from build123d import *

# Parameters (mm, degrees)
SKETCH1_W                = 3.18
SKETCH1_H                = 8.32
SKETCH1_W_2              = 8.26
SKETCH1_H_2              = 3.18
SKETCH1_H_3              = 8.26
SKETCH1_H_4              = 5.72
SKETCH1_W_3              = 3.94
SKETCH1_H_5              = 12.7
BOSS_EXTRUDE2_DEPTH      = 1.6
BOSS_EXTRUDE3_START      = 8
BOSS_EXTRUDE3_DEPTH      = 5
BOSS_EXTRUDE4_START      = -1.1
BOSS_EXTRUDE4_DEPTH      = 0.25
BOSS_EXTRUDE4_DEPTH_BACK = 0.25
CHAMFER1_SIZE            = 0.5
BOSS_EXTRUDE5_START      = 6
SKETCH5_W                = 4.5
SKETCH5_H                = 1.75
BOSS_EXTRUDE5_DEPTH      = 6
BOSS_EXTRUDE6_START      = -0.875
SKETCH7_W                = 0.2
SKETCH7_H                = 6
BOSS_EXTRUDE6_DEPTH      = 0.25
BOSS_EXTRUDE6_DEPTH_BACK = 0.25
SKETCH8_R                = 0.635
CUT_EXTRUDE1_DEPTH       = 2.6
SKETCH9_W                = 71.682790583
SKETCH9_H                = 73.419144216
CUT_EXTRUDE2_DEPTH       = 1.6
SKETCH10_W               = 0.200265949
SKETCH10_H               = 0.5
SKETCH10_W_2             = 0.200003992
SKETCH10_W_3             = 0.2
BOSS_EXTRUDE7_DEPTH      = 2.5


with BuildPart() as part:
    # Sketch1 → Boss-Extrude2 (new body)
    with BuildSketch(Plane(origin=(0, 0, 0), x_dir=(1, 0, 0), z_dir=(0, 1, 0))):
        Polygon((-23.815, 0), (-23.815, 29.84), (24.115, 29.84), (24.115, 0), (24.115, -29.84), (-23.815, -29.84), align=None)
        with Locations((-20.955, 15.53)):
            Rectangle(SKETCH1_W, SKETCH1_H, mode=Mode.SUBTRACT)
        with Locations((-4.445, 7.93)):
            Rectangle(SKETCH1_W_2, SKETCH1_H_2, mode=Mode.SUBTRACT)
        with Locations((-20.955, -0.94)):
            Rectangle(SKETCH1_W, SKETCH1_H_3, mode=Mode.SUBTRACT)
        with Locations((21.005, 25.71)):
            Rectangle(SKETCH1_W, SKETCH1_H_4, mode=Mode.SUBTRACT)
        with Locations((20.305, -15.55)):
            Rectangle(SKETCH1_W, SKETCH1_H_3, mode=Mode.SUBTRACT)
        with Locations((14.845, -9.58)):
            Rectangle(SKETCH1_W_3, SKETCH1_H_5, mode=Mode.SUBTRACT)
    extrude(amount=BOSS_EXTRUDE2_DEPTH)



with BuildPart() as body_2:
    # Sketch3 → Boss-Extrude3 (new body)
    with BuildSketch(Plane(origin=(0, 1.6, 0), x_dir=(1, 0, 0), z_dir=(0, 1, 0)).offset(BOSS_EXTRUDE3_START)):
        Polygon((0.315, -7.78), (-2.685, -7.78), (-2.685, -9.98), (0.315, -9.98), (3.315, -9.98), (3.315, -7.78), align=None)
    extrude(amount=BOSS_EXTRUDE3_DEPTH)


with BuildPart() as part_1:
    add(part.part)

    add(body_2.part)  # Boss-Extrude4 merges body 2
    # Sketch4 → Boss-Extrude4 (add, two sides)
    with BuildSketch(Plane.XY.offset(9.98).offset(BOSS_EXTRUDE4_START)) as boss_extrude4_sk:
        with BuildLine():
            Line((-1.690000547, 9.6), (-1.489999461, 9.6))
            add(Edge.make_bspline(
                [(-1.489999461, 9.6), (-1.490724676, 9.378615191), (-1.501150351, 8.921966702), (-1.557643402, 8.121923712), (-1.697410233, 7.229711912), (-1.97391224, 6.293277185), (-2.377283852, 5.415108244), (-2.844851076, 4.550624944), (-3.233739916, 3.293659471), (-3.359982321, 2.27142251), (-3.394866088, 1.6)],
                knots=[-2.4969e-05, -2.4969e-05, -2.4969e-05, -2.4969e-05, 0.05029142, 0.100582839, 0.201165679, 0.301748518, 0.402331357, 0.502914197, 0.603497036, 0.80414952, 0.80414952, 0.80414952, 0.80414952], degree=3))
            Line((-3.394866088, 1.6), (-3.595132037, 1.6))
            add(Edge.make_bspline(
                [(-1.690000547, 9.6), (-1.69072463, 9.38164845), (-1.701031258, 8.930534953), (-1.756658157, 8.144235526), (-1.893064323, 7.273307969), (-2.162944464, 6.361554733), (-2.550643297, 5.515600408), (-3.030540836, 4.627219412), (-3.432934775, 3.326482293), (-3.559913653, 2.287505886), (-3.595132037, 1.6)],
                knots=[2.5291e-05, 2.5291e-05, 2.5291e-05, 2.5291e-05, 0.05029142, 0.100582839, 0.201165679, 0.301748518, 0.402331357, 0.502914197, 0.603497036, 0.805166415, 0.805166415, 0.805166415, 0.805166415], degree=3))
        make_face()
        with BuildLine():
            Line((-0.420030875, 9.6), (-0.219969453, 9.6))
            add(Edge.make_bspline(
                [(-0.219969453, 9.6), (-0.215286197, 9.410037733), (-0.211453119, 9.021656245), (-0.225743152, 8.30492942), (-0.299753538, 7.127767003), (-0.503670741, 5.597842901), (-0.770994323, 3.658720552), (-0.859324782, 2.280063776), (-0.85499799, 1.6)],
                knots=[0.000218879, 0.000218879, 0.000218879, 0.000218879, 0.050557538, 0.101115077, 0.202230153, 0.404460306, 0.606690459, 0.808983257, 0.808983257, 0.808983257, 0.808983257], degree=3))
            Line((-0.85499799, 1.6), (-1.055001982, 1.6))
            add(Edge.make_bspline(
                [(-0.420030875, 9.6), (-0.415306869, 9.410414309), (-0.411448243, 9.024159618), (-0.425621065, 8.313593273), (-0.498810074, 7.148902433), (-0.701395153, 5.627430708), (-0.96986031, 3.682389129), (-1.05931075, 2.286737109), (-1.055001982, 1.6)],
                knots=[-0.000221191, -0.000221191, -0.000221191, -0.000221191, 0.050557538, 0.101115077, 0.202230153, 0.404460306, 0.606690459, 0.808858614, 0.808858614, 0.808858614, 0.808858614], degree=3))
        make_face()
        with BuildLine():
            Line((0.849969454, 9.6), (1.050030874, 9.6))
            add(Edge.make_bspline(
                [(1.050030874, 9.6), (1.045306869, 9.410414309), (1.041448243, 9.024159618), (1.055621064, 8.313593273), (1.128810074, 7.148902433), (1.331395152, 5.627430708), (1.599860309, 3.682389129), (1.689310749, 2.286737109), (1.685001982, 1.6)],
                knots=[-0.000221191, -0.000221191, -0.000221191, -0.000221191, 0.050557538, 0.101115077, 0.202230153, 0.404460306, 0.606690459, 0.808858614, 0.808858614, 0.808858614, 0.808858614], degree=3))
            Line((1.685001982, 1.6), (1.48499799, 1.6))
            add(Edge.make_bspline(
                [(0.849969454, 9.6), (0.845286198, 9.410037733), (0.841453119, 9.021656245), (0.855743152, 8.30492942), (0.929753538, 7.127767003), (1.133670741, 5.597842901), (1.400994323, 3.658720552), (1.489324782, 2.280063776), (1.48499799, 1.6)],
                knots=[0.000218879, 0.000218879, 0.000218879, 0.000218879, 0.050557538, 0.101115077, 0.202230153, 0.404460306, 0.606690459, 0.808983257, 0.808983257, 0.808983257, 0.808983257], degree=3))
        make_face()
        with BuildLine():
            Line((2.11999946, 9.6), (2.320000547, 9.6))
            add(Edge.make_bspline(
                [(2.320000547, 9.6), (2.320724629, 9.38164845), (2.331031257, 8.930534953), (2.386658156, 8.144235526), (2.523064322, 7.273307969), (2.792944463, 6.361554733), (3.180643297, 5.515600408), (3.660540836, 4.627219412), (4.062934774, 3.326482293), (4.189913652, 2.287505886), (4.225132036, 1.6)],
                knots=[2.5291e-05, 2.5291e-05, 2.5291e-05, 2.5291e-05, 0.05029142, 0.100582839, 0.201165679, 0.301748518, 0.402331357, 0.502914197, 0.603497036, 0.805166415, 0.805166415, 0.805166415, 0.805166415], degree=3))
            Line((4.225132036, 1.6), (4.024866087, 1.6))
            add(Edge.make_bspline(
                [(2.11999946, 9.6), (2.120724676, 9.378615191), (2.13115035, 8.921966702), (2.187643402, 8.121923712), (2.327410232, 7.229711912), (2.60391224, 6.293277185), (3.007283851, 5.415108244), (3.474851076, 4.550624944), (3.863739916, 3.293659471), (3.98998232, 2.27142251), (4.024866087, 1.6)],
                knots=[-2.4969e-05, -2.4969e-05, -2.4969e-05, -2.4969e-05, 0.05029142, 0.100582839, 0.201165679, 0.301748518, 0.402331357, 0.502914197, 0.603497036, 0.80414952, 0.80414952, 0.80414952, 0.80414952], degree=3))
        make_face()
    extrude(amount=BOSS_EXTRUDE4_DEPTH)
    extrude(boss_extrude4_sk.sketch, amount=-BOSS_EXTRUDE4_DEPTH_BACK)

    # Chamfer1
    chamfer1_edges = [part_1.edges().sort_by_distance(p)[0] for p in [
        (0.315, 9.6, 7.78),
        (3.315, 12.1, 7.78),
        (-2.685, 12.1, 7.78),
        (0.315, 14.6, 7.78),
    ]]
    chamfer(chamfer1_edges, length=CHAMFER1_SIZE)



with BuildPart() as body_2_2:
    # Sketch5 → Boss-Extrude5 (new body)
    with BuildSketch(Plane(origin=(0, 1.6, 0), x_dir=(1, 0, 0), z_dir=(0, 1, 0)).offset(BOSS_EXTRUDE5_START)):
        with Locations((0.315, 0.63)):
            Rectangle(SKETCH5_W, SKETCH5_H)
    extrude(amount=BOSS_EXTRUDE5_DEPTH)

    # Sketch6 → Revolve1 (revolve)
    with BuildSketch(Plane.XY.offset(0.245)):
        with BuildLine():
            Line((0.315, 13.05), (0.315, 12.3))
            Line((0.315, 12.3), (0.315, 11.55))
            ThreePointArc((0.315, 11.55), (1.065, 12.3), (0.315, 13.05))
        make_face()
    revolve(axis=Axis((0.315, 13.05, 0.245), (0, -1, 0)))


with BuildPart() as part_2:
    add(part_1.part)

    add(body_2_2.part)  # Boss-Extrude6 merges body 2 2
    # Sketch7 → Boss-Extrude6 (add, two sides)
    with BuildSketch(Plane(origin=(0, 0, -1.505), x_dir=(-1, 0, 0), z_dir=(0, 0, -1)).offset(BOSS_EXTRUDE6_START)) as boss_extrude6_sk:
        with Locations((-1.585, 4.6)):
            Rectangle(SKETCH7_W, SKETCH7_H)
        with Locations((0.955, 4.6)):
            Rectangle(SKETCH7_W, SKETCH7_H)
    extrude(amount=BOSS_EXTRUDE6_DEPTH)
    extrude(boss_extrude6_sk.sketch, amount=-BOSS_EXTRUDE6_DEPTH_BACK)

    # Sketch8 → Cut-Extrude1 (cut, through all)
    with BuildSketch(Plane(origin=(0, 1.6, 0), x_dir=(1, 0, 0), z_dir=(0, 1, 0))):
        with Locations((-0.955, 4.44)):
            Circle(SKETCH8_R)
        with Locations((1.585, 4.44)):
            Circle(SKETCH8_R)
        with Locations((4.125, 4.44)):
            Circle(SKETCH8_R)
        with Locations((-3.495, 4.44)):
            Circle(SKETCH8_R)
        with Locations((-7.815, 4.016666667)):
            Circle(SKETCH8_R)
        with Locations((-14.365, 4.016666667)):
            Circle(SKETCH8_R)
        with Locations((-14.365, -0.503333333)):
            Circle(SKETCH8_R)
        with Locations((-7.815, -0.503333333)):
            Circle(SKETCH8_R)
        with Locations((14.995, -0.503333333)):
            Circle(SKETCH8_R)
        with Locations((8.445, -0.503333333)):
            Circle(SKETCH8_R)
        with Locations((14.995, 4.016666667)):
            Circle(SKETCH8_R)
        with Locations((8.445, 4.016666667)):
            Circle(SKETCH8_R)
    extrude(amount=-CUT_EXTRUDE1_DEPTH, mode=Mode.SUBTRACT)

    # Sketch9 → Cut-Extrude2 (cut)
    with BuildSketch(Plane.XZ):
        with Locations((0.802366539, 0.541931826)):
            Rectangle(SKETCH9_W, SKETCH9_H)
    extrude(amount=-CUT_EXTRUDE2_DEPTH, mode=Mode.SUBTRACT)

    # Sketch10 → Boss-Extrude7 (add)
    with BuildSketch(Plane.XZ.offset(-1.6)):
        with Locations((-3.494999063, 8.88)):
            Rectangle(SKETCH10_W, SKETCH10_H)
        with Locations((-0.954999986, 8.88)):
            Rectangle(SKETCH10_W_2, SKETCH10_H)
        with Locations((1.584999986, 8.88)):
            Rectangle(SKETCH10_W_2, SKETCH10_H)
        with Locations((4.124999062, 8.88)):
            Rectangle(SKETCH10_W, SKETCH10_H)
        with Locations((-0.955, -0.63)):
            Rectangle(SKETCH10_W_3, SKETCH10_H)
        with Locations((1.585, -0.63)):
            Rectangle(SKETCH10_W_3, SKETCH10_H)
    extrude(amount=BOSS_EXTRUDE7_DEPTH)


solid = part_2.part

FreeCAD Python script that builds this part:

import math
import FreeCAD as App
import Part
import Sketcher

V = App.Vector


def edges_at(feature, points):
    """Names of the edges that pass closest to the given points."""
    edges = feature.Shape.Edges
    near = lambda p: min(range(len(edges)), key=lambda i: edges[i].distToShape(Part.Vertex(*p))[0])
    return sorted({f"Edge{near(p) + 1}" for p in points})


def add_polygon(sketch, points):
    """Adds a closed chain of lines whose ends are joined by coincident constraints."""
    first, n = sketch.GeometryCount, len(points)
    for a, b in zip(points, points[1:] + points[:1]):
        sketch.addGeometry(Part.LineSegment(App.Vector(*a, 0), App.Vector(*b, 0)), False)
    for i in range(n):
        sketch.addConstraint(Sketcher.Constraint("Coincident", first + i, 2, first + (i + 1) % n, 1))

doc = App.newDocument("Part")
body = doc.addObject("PartDesign::Body", "Body")

sketch1 = body.newObject("Sketcher::SketchObject", "Sketch")
sketch1.AttachmentSupport = (doc.getObject("XZ_Plane"), [""])
sketch1.MapMode = "FlatFace"
add_polygon(sketch1, [(-23.8, -29.8), (-23.8, 29.8), (24.1, 29.8), (24.1, -29.8)])
add_polygon(sketch1, [(18.7, 19.7), (18.7, 11.4), (21.9, 11.4), (21.9, 19.7)])
add_polygon(sketch1, [(12.9, 15.9), (12.9, 3.2), (16.8, 3.2), (16.8, 15.9)])
add_polygon(sketch1, [(-22.5, 5.1), (-22.5, -3.2), (-19.4, -3.2), (-19.4, 5.1)])
add_polygon(sketch1, [(19.4, -22.9), (19.4, -28.6), (22.6, -28.6), (22.6, -22.9)])
add_polygon(sketch1, [(-8.6, -6.3), (-8.6, -9.5), (-0.3, -9.5), (-0.3, -6.3)])
add_polygon(sketch1, [(-22.5, -11.4), (-22.5, -19.7), (-19.4, -19.7), (-19.4, -11.4)])
sketch1.addConstraint([
    Sketcher.Constraint("Vertical", 0),
    Sketcher.Constraint("Horizontal", 1),
    Sketcher.Constraint("Vertical", 2),
    Sketcher.Constraint("Horizontal", 3),
    Sketcher.Constraint("Vertical", 4),
    Sketcher.Constraint("Horizontal", 5),
    Sketcher.Constraint("Vertical", 6),
    Sketcher.Constraint("Horizontal", 7),
    Sketcher.Constraint("Vertical", 8),
    Sketcher.Constraint("Horizontal", 9),
    Sketcher.Constraint("Vertical", 10),
    Sketcher.Constraint("Horizontal", 11),
    Sketcher.Constraint("Vertical", 12),
    Sketcher.Constraint("Horizontal", 13),
    Sketcher.Constraint("Vertical", 14),
    Sketcher.Constraint("Horizontal", 15),
    Sketcher.Constraint("Vertical", 16),
    Sketcher.Constraint("Horizontal", 17),
    Sketcher.Constraint("Vertical", 18),
    Sketcher.Constraint("Horizontal", 19),
    Sketcher.Constraint("Vertical", 20),
    Sketcher.Constraint("Horizontal", 21),
    Sketcher.Constraint("Vertical", 22),
    Sketcher.Constraint("Horizontal", 23),
    Sketcher.Constraint("Vertical", 24),
    Sketcher.Constraint("Horizontal", 25),
    Sketcher.Constraint("Vertical", 26),
    Sketcher.Constraint("Horizontal", 27),
    Sketcher.Constraint("Vertical", 15, 2, 24, 2),
    Sketcher.Constraint("Vertical", 14, 2, 25, 2),
    Sketcher.Constraint("Equal", 7, 13),
    Sketcher.Constraint("Equal", 15, 17),
    Sketcher.Constraint("Equal", 23, 4),
    Sketcher.Constraint("Equal", 6, 12),
    Sketcher.Constraint("Equal", 27, 20),
    Sketcher.Constraint("DistanceY", 8, 2, 8, 1, 12.7),
    Sketcher.Constraint("DistanceX", 1, 1, 1, 2, 47.93),
    Sketcher.Constraint("DistanceX", 5, 1, 5, 2, 3.18),
    Sketcher.Constraint("DistanceX", 9, 1, 9, 2, 3.94),
    Sketcher.Constraint("DistanceX", 21, 1, 21, 2, 8.26),
    Sketcher.Constraint("DistanceY", 0, 1, 0, 2, 59.68),
    Sketcher.Constraint("DistanceY", 16, 2, 16, 1, 5.72),
    Sketcher.Constraint("DistanceY", 24, 2, 24, 1, 8.32),
    Sketcher.Constraint("DistanceX", 4, 2, 1, 2, 5.4),
    Sketcher.Constraint("DistanceX", 9, 2, 4, 2, 1.9),
    Sketcher.Constraint("DistanceX", 16, 2, 2, 2, 4.7),
    Sketcher.Constraint("DistanceY", 16, 2, 9, 2, 31.8),
    Sketcher.Constraint("DistanceY", 24, 2, 12, 2, 16.5),
    Sketcher.Constraint("DistanceY", -1, 1, 0, 2, 29.84),
    Sketcher.Constraint("DistanceY", -1, 1, 4, 2, 11.42),
    Sketcher.Constraint("DistanceY", -1, 1, 8, 2, 3.23),
    Sketcher.Constraint("DistanceY", 12, 2, -1, 1, 3.19),
    Sketcher.Constraint("DistanceY", 20, 2, -1, 1, 9.52),
    Sketcher.Constraint("DistanceX", 3, 2, 12, 2, 1.27),
    Sketcher.Constraint("DistanceX", 13, 2, 20, 2, 10.79),
    Sketcher.Constraint("DistanceX", 0, 2, -1, 1, 23.815),
])
pad1 = body.newObject("PartDesign::Pad", "Pad")
pad1.Profile = sketch1
pad1.Length = 1.6
pad1.Reversed = True
body2 = doc.addObject("PartDesign::Body", "Body001")

sketch2 = body2.newObject("Sketcher::SketchObject", "Sketch001")
sketch2.AttachmentSupport = (doc.getObject("XZ_Plane001"), [""])
sketch2.MapMode = "FlatFace"
sketch2.AttachmentOffset = App.Placement(V(0, 0, -9.6), App.Rotation())
add_polygon(sketch2, [(-2.7, 7.8), (-2.7, 10), (3.3, 10), (3.3, 7.8)])
sketch2.addConstraint([
    Sketcher.Constraint("Vertical", 0),
    Sketcher.Constraint("Horizontal", 1),
    Sketcher.Constraint("Vertical", 2),
    Sketcher.Constraint("Horizontal", 3),
    Sketcher.Constraint("DistanceX", 1, 1, 1, 2, 6.0),
    Sketcher.Constraint("DistanceY", 0, 1, 0, 2, 2.2),
    Sketcher.Constraint("DistanceY", -1, 1, 0, 2, 9.98),
    Sketcher.Constraint("DistanceX", 0, 2, -1, 1, 2.685),
])
pad2 = body2.newObject("PartDesign::Pad", "Pad001")
pad2.Profile = sketch2
pad2.Length = 5
pad2.Reversed = True
body.AllowCompound = True
doc.recompute()

boolean = body.newObject("PartDesign::Boolean", "Boolean")
boolean.Type = "Fuse"
boolean.addObjects([body2])

sketch3 = body.newObject("Sketcher::SketchObject", "Sketch002")
sketch3.AttachmentSupport = (doc.getObject("XY_Plane"), [""])
sketch3.MapMode = "FlatFace"
sketch3.AttachmentOffset = App.Placement(V(0, 0, 8.88), App.Rotation())
sketch3.addGeometry([
    Part.LineSegment(V(-1.489999, 9.6, 0), V(-1.690001, 9.6, 0)),
    Part.BSplineCurve([V(-1.690001, 9.6, 0), V(-1.690725, 9.381648, 0), V(-1.701031, 8.930535, 0), V(-1.756658, 8.144236, 0), V(-1.893064, 7.273308, 0), V(-2.162944, 6.361555, 0), V(-2.550643, 5.5156, 0), V(-3.030541, 4.627219, 0), V(-3.432935, 3.326482, 0), V(-3.559914, 2.287506, 0), V(-3.595132, 1.6, 0)], [4, 1, 1, 1, 1, 1, 1, 1, 4], [0.000025291, 0.05029142, 0.100582839, 0.201165679, 0.301748518, 0.402331357, 0.502914197, 0.603497036, 0.805166415], False, 3, [1, 1, 1, 1, 1, 1, 1, 1, 1, 1, 1], False),
    Part.LineSegment(V(-3.595132, 1.6, 0), V(-3.394866, 1.6, 0)),
    Part.BSplineCurve([V(-1.489999, 9.6, 0), V(-1.490725, 9.378615, 0), V(-1.50115, 8.921967, 0), V(-1.557643, 8.121924, 0), V(-1.69741, 7.229712, 0), V(-1.973912, 6.293277, 0), V(-2.377284, 5.415108, 0), V(-2.844851, 4.550625, 0), V(-3.23374, 3.293659, 0), V(-3.359982, 2.271423, 0), V(-3.394866, 1.6, 0)], [4, 1, 1, 1, 1, 1, 1, 1, 4], [-0.000024969, 0.05029142, 0.100582839, 0.201165679, 0.301748518, 0.402331357, 0.502914197, 0.603497036, 0.80414952], False, 3, [1, 1, 1, 1, 1, 1, 1, 1, 1, 1, 1], False),
    Part.LineSegment(V(-0.219969, 9.6, 0), V(-0.420031, 9.6, 0)),
    Part.BSplineCurve([V(-0.420031, 9.6, 0), V(-0.415307, 9.410414, 0), V(-0.411448, 9.02416, 0), V(-0.425621, 8.313593, 0), V(-0.49881, 7.148902, 0), V(-0.701395, 5.627431, 0), V(-0.96986, 3.682389, 0), V(-1.059311, 2.286737, 0), V(-1.055002, 1.6, 0)], [4, 1, 1, 1, 1, 1, 4], [-0.000221191, 0.050557538, 0.101115077, 0.202230153, 0.404460306, 0.606690459, 0.808858614], False, 3, [1, 1, 1, 1, 1, 1, 1, 1, 1], False),
    Part.LineSegment(V(-1.055002, 1.6, 0), V(-0.854998, 1.6, 0)),
    Part.BSplineCurve([V(-0.219969, 9.6, 0), V(-0.215286, 9.410038, 0), V(-0.211453, 9.021656, 0), V(-0.225743, 8.304929, 0), V(-0.299754, 7.127767, 0), V(-0.503671, 5.597843, 0), V(-0.770994, 3.658721, 0), V(-0.859325, 2.280064, 0), V(-0.854998, 1.6, 0)], [4, 1, 1, 1, 1, 1, 4], [0.000218879, 0.050557538, 0.101115077, 0.202230153, 0.404460306, 0.606690459, 0.808983257], False, 3, [1, 1, 1, 1, 1, 1, 1, 1, 1], False),
    Part.LineSegment(V(1.050031, 9.6, 0), V(0.849969, 9.6, 0)),
    Part.BSplineCurve([V(0.849969, 9.6, 0), V(0.845286, 9.410038, 0), V(0.841453, 9.021656, 0), V(0.855743, 8.304929, 0), V(0.929754, 7.127767, 0), V(1.133671, 5.597843, 0), V(1.400994, 3.658721, 0), V(1.489325, 2.280064, 0), V(1.484998, 1.6, 0)], [4, 1, 1, 1, 1, 1, 4], [0.000218879, 0.050557538, 0.101115077, 0.202230153, 0.404460306, 0.606690459, 0.808983257], False, 3, [1, 1, 1, 1, 1, 1, 1, 1, 1], False),
    Part.LineSegment(V(1.484998, 1.6, 0), V(1.685002, 1.6, 0)),
    Part.BSplineCurve([V(1.050031, 9.6, 0), V(1.045307, 9.410414, 0), V(1.041448, 9.02416, 0), V(1.055621, 8.313593, 0), V(1.12881, 7.148902, 0), V(1.331395, 5.627431, 0), V(1.59986, 3.682389, 0), V(1.689311, 2.286737, 0), V(1.685002, 1.6, 0)], [4, 1, 1, 1, 1, 1, 4], [-0.000221191, 0.050557538, 0.101115077, 0.202230153, 0.404460306, 0.606690459, 0.808858614], False, 3, [1, 1, 1, 1, 1, 1, 1, 1, 1], False),
    Part.LineSegment(V(2.320001, 9.6, 0), V(2.119999, 9.6, 0)),
    Part.BSplineCurve([V(2.119999, 9.6, 0), V(2.120725, 9.378615, 0), V(2.13115, 8.921967, 0), V(2.187643, 8.121924, 0), V(2.32741, 7.229712, 0), V(2.603912, 6.293277, 0), V(3.007284, 5.415108, 0), V(3.474851, 4.550625, 0), V(3.86374, 3.293659, 0), V(3.989982, 2.271423, 0), V(4.024866, 1.6, 0)], [4, 1, 1, 1, 1, 1, 1, 1, 4], [-0.000024969, 0.05029142, 0.100582839, 0.201165679, 0.301748518, 0.402331357, 0.502914197, 0.603497036, 0.80414952], False, 3, [1, 1, 1, 1, 1, 1, 1, 1, 1, 1, 1], False),
    Part.LineSegment(V(4.024866, 1.6, 0), V(4.225132, 1.6, 0)),
    Part.BSplineCurve([V(2.320001, 9.6, 0), V(2.320725, 9.381648, 0), V(2.331031, 8.930535, 0), V(2.386658, 8.144236, 0), V(2.523064, 7.273308, 0), V(2.792944, 6.361555, 0), V(3.180643, 5.5156, 0), V(3.660541, 4.627219, 0), V(4.062935, 3.326482, 0), V(4.189914, 2.287506, 0), V(4.225132, 1.6, 0)], [4, 1, 1, 1, 1, 1, 1, 1, 4], [0.000025291, 0.05029142, 0.100582839, 0.201165679, 0.301748518, 0.402331357, 0.502914197, 0.603497036, 0.805166415], False, 3, [1, 1, 1, 1, 1, 1, 1, 1, 1, 1, 1], False),
], False)
sketch3.addConstraint([
    Sketcher.Constraint("Block", 1),
    Sketcher.Constraint("Block", 3),
    Sketcher.Constraint("Block", 5),
    Sketcher.Constraint("Block", 7),
    Sketcher.Constraint("Block", 9),
    Sketcher.Constraint("Block", 11),
    Sketcher.Constraint("Block", 13),
    Sketcher.Constraint("Block", 15),
    Sketcher.Constraint("Coincident", 0, 2, 1, 1),
    Sketcher.Constraint("Coincident", 1, 2, 2, 1),
    Sketcher.Constraint("Coincident", 2, 2, 3, 2),
    Sketcher.Constraint("Coincident", 3, 1, 0, 1),
    Sketcher.Constraint("Coincident", 4, 2, 5, 1),
    Sketcher.Constraint("Coincident", 5, 2, 6, 1),
    Sketcher.Constraint("Coincident", 6, 2, 7, 2),
    Sketcher.Constraint("Coincident", 7, 1, 4, 1),
    Sketcher.Constraint("Coincident", 8, 2, 9, 1),
    Sketcher.Constraint("Coincident", 9, 2, 10, 1),
    Sketcher.Constraint("Coincident", 10, 2, 11, 2),
    Sketcher.Constraint("Coincident", 11, 1, 8, 1),
    Sketcher.Constraint("Coincident", 12, 2, 13, 1),
    Sketcher.Constraint("Coincident", 13, 2, 14, 1),
    Sketcher.Constraint("Coincident", 14, 2, 15, 2),
    Sketcher.Constraint("Coincident", 15, 1, 12, 1),
])
pad3 = body.newObject("PartDesign::Pad", "Pad002")
pad3.Profile = sketch3
pad3.Type = "TwoLengths"
pad3.Length = 0.25
pad3.Length2 = 0.25
doc.recompute()

chamfer = body.newObject("PartDesign::Chamfer", "Chamfer")
chamfer.Base = (pad3, edges_at(pad3, [
    (0.315, 9.6, 7.78),
    (3.315, 12.1, 7.78),
    (-2.685, 12.1, 7.78),
    (0.315, 14.6, 7.78),
]))
chamfer.Size = 0.5
body3 = doc.addObject("PartDesign::Body", "Body002")

sketch4 = body3.newObject("Sketcher::SketchObject", "Sketch003")
sketch4.AttachmentSupport = (doc.getObject("XZ_Plane002"), [""])
sketch4.MapMode = "FlatFace"
sketch4.AttachmentOffset = App.Placement(V(0, 0, -7.6), App.Rotation())
add_polygon(sketch4, [(-1.9, -1.5), (-1.9, 0.2), (2.6, 0.2), (2.6, -1.5)])
sketch4.addConstraint([
    Sketcher.Constraint("Vertical", 0),
    Sketcher.Constraint("Horizontal", 1),
    Sketcher.Constraint("Vertical", 2),
    Sketcher.Constraint("Horizontal", 3),
    Sketcher.Constraint("DistanceX", 1, 1, 1, 2, 4.5),
    Sketcher.Constraint("DistanceY", 0, 1, 0, 2, 1.75),
    Sketcher.Constraint("DistanceX", 0, 2, -1, 1, 1.935),
    Sketcher.Constraint("DistanceY", -1, 1, 0, 2, 0.245),
])
pad4 = body3.newObject("PartDesign::Pad", "Pad003")
pad4.Profile = sketch4
pad4.Length = 6
pad4.Reversed = True

sketch5 = body3.newObject("Sketcher::SketchObject", "Sketch004")
sketch5.AttachmentSupport = (doc.getObject("XY_Plane002"), [""])
sketch5.MapMode = "FlatFace"
sketch5.AttachmentOffset = App.Placement(V(0, 0, 0.245), App.Rotation())
sketch5.addGeometry([
    Part.LineSegment(V(0.3, 13.1, 0), V(0.3, 11.6, 0)),
    Part.ArcOfCircle(Part.Circle(V(0.3, 12.3, 0), V(0, 0, 1), 0.8), math.radians(-90), math.radians(90)),
], False)
sketch5.addGeometry(Part.LineSegment(V(0.3, 13.1, 0), V(0.3, 11.6, 0)), True)
sketch5.addConstraint([
    Sketcher.Constraint("Coincident", 0, 1, 1, 2),
    Sketcher.Constraint("Coincident", 1, 1, 0, 2),
    Sketcher.Constraint("Vertical", 0),
    Sketcher.Constraint("Vertical", 2),
    Sketcher.Constraint("Coincident", 2, 1, 0, 1),
    Sketcher.Constraint("Vertical", 1, 3, 0, 1),
    Sketcher.Constraint("Equal", 0, 2),
    Sketcher.Constraint("Radius", 1, 0.75),
    Sketcher.Constraint("DistanceY", -1, 1, 1, 3, 12.3),
    Sketcher.Constraint("DistanceX", -1, 1, 1, 3, 0.315),
])
revolution = body3.newObject("PartDesign::Revolution", "Revolution")
revolution.Profile = sketch5
revolution.ReferenceAxis = (sketch5, ["Axis0"])
revolution.Angle = 360
body.AllowCompound = True
doc.recompute()

boolean2 = body.newObject("PartDesign::Boolean", "Boolean001")
boolean2.Type = "Fuse"
boolean2.addObjects([body3])

sketch6 = body.newObject("Sketcher::SketchObject", "Sketch005")
sketch6.AttachmentSupport = (doc.getObject("XY_Plane"), [""])
sketch6.MapMode = "FlatFace"
sketch6.AttachmentOffset = App.Placement(V(0, 0, -0.63), App.Rotation())
add_polygon(sketch6, [(1.69, 7.6), (1.69, 1.6), (1.49, 1.6), (1.49, 7.6)])
add_polygon(sketch6, [(-0.85, 7.6), (-0.85, 1.6), (-1.05, 1.6), (-1.05, 7.6)])
sketch6.addConstraint([
    Sketcher.Constraint("Vertical", 0),
    Sketcher.Constraint("Horizontal", 1),
    Sketcher.Constraint("Vertical", 2),
    Sketcher.Constraint("Horizontal", 3),
    Sketcher.Constraint("Vertical", 4),
    Sketcher.Constraint("Horizontal", 5),
    Sketcher.Constraint("Vertical", 6),
    Sketcher.Constraint("Horizontal", 7),
    Sketcher.Constraint("Horizontal", 1, 2, 4, 2),
    Sketcher.Constraint("Horizontal", 3, 2, 6, 2),
    Sketcher.Constraint("Equal", 3, 5),
    Sketcher.Constraint("DistanceY", 0, 2, 0, 1, 6.0),
    Sketcher.Constraint("DistanceX", 1, 2, 1, 1, 0.2),
    Sketcher.Constraint("DistanceY", -1, 1, 0, 2, 1.6),
    Sketcher.Constraint("DistanceX", 4, 2, 1, 2, 2.34),
    Sketcher.Constraint("DistanceX", -1, 1, 0, 2, 1.685),
])
pad5 = body.newObject("PartDesign::Pad", "Pad004")
pad5.Profile = sketch6
pad5.Type = "TwoLengths"
pad5.Length = 0.25
pad5.Length2 = 0.25
pad5.Reversed = True

sketch7 = body.newObject("Sketcher::SketchObject", "Sketch006")
sketch7.AttachmentSupport = (doc.getObject("XZ_Plane"), [""])
sketch7.MapMode = "FlatFace"
sketch7.AttachmentOffset = App.Placement(V(0, 0, -1.6), App.Rotation())
sketch7.addGeometry([
    Part.Circle(V(-1, -4.4, 0), V(0, 0, 1), 0.6),
    Part.Circle(V(1.6, -4.4, 0), V(0, 0, 1), 0.6),
    Part.Circle(V(4.1, -4.4, 0), V(0, 0, 1), 0.6),
    Part.Circle(V(-3.5, -4.4, 0), V(0, 0, 1), 0.6),
    Part.Circle(V(-7.8, -4, 0), V(0, 0, 1), 0.6),
    Part.Circle(V(-14.4, -4, 0), V(0, 0, 1), 0.6),
    Part.Circle(V(-14.4, 0.5, 0), V(0, 0, 1), 0.6),
    Part.Circle(V(-7.8, 0.5, 0), V(0, 0, 1), 0.6),
    Part.Circle(V(15, 0.5, 0), V(0, 0, 1), 0.6),
    Part.Circle(V(8.4, 0.5, 0), V(0, 0, 1), 0.6),
    Part.Circle(V(15, -4, 0), V(0, 0, 1), 0.6),
    Part.Circle(V(8.4, -4, 0), V(0, 0, 1), 0.6),
], False)
sketch7.addConstraint([
    Sketcher.Constraint("Equal", 0, 1),
    Sketcher.Constraint("Equal", 1, 2),
    Sketcher.Constraint("Equal", 2, 3),
    Sketcher.Constraint("Equal", 3, 4),
    Sketcher.Constraint("Equal", 4, 5),
    Sketcher.Constraint("Equal", 5, 6),
    Sketcher.Constraint("Equal", 6, 7),
    Sketcher.Constraint("Equal", 7, 8),
    Sketcher.Constraint("Equal", 8, 9),
    Sketcher.Constraint("Equal", 9, 10),
    Sketcher.Constraint("Equal", 10, 11),
    Sketcher.Constraint("Horizontal", 0, 3, 1, 3),
    Sketcher.Constraint("Horizontal", 1, 3, 2, 3),
    Sketcher.Constraint("Horizontal", 2, 3, 3, 3),
    Sketcher.Constraint("Horizontal", 4, 3, 5, 3),
    Sketcher.Constraint("Horizontal", 6, 3, 7, 3),
    Sketcher.Constraint("Horizontal", 7, 3, 8, 3),
    Sketcher.Constraint("Horizontal", 8, 3, 9, 3),
    Sketcher.Constraint("Horizontal", 5, 3, 10, 3),
    Sketcher.Constraint("Horizontal", 10, 3, 11, 3),
    Sketcher.Constraint("Vertical", 5, 3, 6, 3),
    Sketcher.Constraint("Vertical", 4, 3, 7, 3),
    Sketcher.Constraint("Vertical", 8, 3, 10, 3),
    Sketcher.Constraint("Vertical", 9, 3, 11, 3),
    Sketcher.Constraint("Diameter", 0, 1.27),
    Sketcher.Constraint("DistanceX", 4, 3, 1, 3, 9.4),
    Sketcher.Constraint("DistanceX", 0, 3, 9, 3, 9.4),
    Sketcher.Constraint("DistanceY", 0, 3, -1, 1, 4.44),
    Sketcher.Constraint("DistanceX", 0, 3, 1, 3, 2.54),
    Sketcher.Constraint("DistanceX", 1, 3, 2, 3, 2.54),
    Sketcher.Constraint("DistanceX", 3, 3, 0, 3, 2.54),
    Sketcher.Constraint("DistanceX", 5, 3, 4, 3, 6.55),
    Sketcher.Constraint("DistanceY", 5, 3, 6, 3, 4.52),
    Sketcher.Constraint("DistanceX", 2, 3, 8, 3, 10.87),
    Sketcher.Constraint("DistanceX", 0, 3, -1, 1, 0.955),
    Sketcher.Constraint("DistanceY", 4, 3, -1, 1, 4.016667),
])
pocket1 = body.newObject("PartDesign::Pocket", "Pocket")
pocket1.Profile = sketch7
pocket1.Type = "ThroughAll"
pocket1.Reversed = True

sketch8 = body.newObject("Sketcher::SketchObject", "Sketch007")
sketch8.AttachmentSupport = (doc.getObject("XZ_Plane"), [""])
sketch8.MapMode = "FlatFace"
add_polygon(sketch8, [(-35, 37), (-35, -36), (37, -36), (37, 37)])
sketch8.addConstraint([
    Sketcher.Constraint("Vertical", 0),
    Sketcher.Constraint("Horizontal", 1),
    Sketcher.Constraint("Vertical", 2),
    Sketcher.Constraint("Horizontal", 3),
    Sketcher.Constraint("DistanceX", 1, 1, 1, 2, 71.682791),
    Sketcher.Constraint("DistanceY", 0, 2, 0, 1, 73.419144),
    Sketcher.Constraint("DistanceX", 0, 2, -1, 1, 35.039029),
    Sketcher.Constraint("DistanceY", 0, 2, -1, 1, 36.16764),
])
pocket2 = body.newObject("PartDesign::Pocket", "Pocket001")
pocket2.Profile = sketch8
pocket2.Length = 1.6

sketch9 = body.newObject("Sketcher::SketchObject", "Sketch008")
sketch9.AttachmentSupport = (doc.getObject("XZ_Plane"), [""])
sketch9.MapMode = "FlatFace"
sketch9.AttachmentOffset = App.Placement(V(0, 0, -1.6), App.Rotation())
add_polygon(sketch9, [(-3.6, 9.13), (-3.6, 8.63), (-3.39, 8.63), (-3.39, 9.13)])
add_polygon(sketch9, [(-1.06, 9.13), (-1.06, 8.63), (-0.85, 8.63), (-0.85, 9.13)])
add_polygon(sketch9, [(1.48, 9.13), (1.48, 8.63), (1.69, 8.63), (1.69, 9.13)])
add_polygon(sketch9, [(4.02, 9.13), (4.02, 8.63), (4.23, 8.63), (4.23, 9.13)])
add_polygon(sketch9, [(-1.05, -0.38), (-1.05, -0.88), (-0.85, -0.88), (-0.85, -0.38)])
add_polygon(sketch9, [(1.49, -0.38), (1.49, -0.88), (1.69, -0.88), (1.69, -0.38)])
sketch9.addConstraint([
    Sketcher.Constraint("Vertical", 0),
    Sketcher.Constraint("Horizontal", 1),
    Sketcher.Constraint("Vertical", 2),
    Sketcher.Constraint("Horizontal", 3),
    Sketcher.Constraint("Vertical", 4),
    Sketcher.Constraint("Horizontal", 5),
    Sketcher.Constraint("Vertical", 6),
    Sketcher.Constraint("Horizontal", 7),
    Sketcher.Constraint("Vertical", 8),
    Sketcher.Constraint("Horizontal", 9),
    Sketcher.Constraint("Vertical", 10),
    Sketcher.Constraint("Horizontal", 11),
    Sketcher.Constraint("Vertical", 12),
    Sketcher.Constraint("Horizontal", 13),
    Sketcher.Constraint("Vertical", 14),
    Sketcher.Constraint("Horizontal", 15),
    Sketcher.Constraint("Vertical", 16),
    Sketcher.Constraint("Horizontal", 17),
    Sketcher.Constraint("Vertical", 18),
    Sketcher.Constraint("Horizontal", 19),
    Sketcher.Constraint("Vertical", 20),
    Sketcher.Constraint("Horizontal", 21),
    Sketcher.Constraint("Vertical", 22),
    Sketcher.Constraint("Horizontal", 23),
    Sketcher.Constraint("Horizontal", 1, 2, 4, 2),
    Sketcher.Constraint("Horizontal", 3, 2, 6, 2),
    Sketcher.Constraint("Horizontal", 5, 2, 8, 2),
    Sketcher.Constraint("Horizontal", 7, 2, 10, 2),
    Sketcher.Constraint("Horizontal", 9, 2, 12, 2),
    Sketcher.Constraint("Horizontal", 11, 2, 14, 2),
    Sketcher.Constraint("Horizontal", 17, 2, 20, 2),
    Sketcher.Constraint("Horizontal", 19, 2, 22, 2),
    Sketcher.Constraint("Vertical", 7, 2, 16, 2),
    Sketcher.Constraint("Vertical", 10, 2, 21, 2),
    Sketcher.Constraint("Equal", 7, 9),
    Sketcher.Constraint("Equal", 3, 13),
    Sketcher.Constraint("Equal", 19, 21),
    Sketcher.Constraint("Equal", 14, 16),
    Sketcher.Constraint("DistanceX", 17, 1, 17, 2, 0.2),
    Sketcher.Constraint("DistanceY", 0, 2, 0, 1, 0.5),
    Sketcher.Constraint("DistanceY", -1, 1, 0, 2, 8.63),
    Sketcher.Constraint("DistanceY", 16, 2, -1, 1, 0.88),
    Sketcher.Constraint("DistanceX", 4, 2, 8, 2, 2.54),
    Sketcher.Constraint("DistanceX", 17, 2, 20, 2, 2.34),
    Sketcher.Constraint("DistanceX", 4, 2, -1, 1, 1.055002),
    Sketcher.Constraint("DistanceX", 1, 1, 1, 2, 0.200266),
    Sketcher.Constraint("DistanceX", 0, 2, 4, 2, 2.54013),
    Sketcher.Constraint("DistanceX", 8, 2, 12, 2, 2.539868),
])
pad6 = body.newObject("PartDesign::Pad", "Pad005")
pad6.Profile = sketch9
pad6.Length = 2.5

doc.recompute()
